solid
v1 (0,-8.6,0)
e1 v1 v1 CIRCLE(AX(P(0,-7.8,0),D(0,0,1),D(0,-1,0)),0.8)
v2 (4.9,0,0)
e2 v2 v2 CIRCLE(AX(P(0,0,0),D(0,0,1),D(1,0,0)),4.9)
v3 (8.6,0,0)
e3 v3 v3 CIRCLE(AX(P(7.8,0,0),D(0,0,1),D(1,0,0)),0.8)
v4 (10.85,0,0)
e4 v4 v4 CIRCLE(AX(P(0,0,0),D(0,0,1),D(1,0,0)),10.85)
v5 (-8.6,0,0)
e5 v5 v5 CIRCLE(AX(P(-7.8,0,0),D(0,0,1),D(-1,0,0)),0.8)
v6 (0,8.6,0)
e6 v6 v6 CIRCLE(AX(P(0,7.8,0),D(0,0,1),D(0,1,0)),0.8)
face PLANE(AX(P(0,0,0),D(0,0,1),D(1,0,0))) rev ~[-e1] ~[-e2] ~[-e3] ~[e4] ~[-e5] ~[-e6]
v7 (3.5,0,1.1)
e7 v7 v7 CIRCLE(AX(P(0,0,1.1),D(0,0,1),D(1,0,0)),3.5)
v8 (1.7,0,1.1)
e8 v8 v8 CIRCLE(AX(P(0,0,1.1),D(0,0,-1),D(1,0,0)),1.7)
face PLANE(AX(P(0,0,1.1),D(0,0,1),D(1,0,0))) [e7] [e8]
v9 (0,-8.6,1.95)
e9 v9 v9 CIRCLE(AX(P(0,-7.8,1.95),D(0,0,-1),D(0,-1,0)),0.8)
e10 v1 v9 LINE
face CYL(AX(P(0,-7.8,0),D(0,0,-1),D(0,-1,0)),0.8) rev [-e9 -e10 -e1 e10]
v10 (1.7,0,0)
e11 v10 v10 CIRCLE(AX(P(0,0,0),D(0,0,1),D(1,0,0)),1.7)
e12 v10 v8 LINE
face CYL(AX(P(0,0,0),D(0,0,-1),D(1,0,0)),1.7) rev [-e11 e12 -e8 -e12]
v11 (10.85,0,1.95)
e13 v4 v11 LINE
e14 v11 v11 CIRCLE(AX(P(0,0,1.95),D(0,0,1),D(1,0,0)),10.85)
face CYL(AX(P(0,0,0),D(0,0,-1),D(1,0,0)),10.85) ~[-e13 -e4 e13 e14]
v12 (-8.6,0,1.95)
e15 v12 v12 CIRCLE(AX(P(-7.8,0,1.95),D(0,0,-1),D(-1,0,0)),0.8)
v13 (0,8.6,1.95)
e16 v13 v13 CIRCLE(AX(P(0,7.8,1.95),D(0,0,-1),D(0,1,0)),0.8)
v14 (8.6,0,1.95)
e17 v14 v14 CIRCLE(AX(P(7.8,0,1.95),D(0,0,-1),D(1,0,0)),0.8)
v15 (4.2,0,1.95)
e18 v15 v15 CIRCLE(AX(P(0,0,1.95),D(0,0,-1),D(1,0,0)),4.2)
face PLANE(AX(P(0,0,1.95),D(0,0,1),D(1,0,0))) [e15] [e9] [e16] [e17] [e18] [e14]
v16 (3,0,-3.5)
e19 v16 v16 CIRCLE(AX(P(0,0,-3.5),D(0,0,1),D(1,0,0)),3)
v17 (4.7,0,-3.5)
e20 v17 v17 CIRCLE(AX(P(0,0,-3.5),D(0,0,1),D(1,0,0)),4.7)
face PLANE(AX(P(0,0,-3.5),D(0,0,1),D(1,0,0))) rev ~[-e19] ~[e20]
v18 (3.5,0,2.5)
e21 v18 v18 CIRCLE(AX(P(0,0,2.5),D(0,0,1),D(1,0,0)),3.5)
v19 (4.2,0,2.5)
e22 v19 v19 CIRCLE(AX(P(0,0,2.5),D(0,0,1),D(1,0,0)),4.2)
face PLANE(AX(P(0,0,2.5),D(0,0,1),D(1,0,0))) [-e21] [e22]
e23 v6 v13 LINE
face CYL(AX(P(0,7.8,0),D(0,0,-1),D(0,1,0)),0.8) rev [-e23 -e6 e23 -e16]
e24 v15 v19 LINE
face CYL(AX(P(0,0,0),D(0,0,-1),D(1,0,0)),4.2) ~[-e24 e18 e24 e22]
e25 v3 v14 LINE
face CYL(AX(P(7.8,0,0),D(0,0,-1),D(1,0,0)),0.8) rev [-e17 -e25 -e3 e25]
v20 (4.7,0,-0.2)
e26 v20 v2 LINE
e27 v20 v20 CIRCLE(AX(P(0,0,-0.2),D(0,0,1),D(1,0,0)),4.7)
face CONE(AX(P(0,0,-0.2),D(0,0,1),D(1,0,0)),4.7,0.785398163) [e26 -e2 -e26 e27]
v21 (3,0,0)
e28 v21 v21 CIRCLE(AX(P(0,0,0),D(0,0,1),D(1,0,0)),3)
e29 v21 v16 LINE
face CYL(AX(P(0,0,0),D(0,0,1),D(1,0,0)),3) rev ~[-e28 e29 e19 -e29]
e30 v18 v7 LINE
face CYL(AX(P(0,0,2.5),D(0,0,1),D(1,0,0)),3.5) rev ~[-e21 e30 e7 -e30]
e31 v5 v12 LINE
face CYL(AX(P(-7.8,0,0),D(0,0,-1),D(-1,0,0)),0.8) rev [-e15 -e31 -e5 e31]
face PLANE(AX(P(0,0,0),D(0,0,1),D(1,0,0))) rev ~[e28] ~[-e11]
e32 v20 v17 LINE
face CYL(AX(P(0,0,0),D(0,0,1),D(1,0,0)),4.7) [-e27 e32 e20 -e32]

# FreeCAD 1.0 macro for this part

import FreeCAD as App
import Part
import Sketcher

V = App.Vector
Q = App.Units.Quantity


def edges_at(feature, points):
    """Names of the edges that pass closest to the given points."""
    edges = feature.Shape.Edges
    near = lambda p: min(range(len(edges)), key=lambda i: edges[i].distToShape(Part.Vertex(*p))[0])
    return sorted({f"Edge{near(p) + 1}" for p in points})

doc = App.newDocument("Part")
body = doc.addObject("PartDesign::Body", "Body")

# Sketch on XY plane
sketch1 = body.newObject("Sketcher::SketchObject", "Sketch")
sketch1.AttachmentSupport = (doc.getObject("XY_Plane"), [""])
sketch1.MapMode = "FlatFace"
sketch1.addGeometry(Part.Circle(V(0, 0, 0), V(0, 0, 1), 11), False)
sketch1.addConstraint(Sketcher.Constraint("Coincident", 0, 3, -1, 1))
sketch1.addConstraint(Sketcher.Constraint("Diameter", 0, Q("21.7 mm")))
pad1 = body.newObject("PartDesign::Pad", "Pad")
pad1.Profile = sketch1
pad1.Length = 1.95

# Sketch on XY plane
sketch2 = body.newObject("Sketcher::SketchObject", "Sketch001")
sketch2.AttachmentSupport = (doc.getObject("XY_Plane"), [""])
sketch2.MapMode = "FlatFace"
sketch2.addGeometry(Part.Circle(V(0, 0, 0), V(0, 0, 1), 4.7), False)
sketch2.addConstraint(Sketcher.Constraint("Coincident", 0, 3, -1, 1))
sketch2.addConstraint(Sketcher.Constraint("Diameter", 0, Q("9.4 mm")))
pad2 = body.newObject("PartDesign::Pad", "Pad001")
pad2.Profile = sketch2
pad2.Length = 3.5
pad2.Reversed = True

# Sketch on XY plane
sketch3 = body.newObject("Sketcher::SketchObject", "Sketch002")
sketch3.AttachmentSupport = (doc.getObject("XY_Plane"), [""])
sketch3.MapMode = "FlatFace"
sketch3.addGeometry(Part.Circle(V(0, 0, 0), V(0, 0, 1), 3), False)
sketch3.addConstraint(Sketcher.Constraint("Coincident", 0, 3, -1, 1))
sketch3.addConstraint(Sketcher.Constraint("Diameter", 0, Q("6 mm")))
pocket1 = body.newObject("PartDesign::Pocket", "Pocket")
pocket1.Profile = sketch3
pocket1.Length = 3.5

# Sketch on XY plane
sketch4 = body.newObject("Sketcher::SketchObject", "Sketch003")
sketch4.AttachmentSupport = (doc.getObject("XY_Plane"), [""])
sketch4.MapMode = "FlatFace"
sketch4.addGeometry(Part.Circle(V(0, 0, 0), V(0, 0, 1), 4.2), False)
sketch4.addConstraint(Sketcher.Constraint("Coincident", 0, 3, -1, 1))
sketch4.addConstraint(Sketcher.Constraint("Diameter", 0, Q("8.4 mm")))
pad3 = body.newObject("PartDesign::Pad", "Pad002")
pad3.Profile = sketch4
pad3.Length = 2.5

# Sketch on XY plane
sketch5 = body.newObject("Sketcher::SketchObject", "Sketch004")
sketch5.AttachmentSupport = (doc.getObject("XY_Plane"), [""])
sketch5.MapMode = "FlatFace"
sketch5.AttachmentOffset = App.Placement(V(0, 0, 2.5), App.Rotation())
sketch5.addGeometry(Part.Circle(V(0, 0, 0), V(0, 0, 1), 3.5), False)
sketch5.addConstraint(Sketcher.Constraint("Coincident", 0, 3, -1, 1))
sketch5.addConstraint(Sketcher.Constraint("Diameter", 0, Q("7 mm")))
pocket2 = body.newObject("PartDesign::Pocket", "Pocket001")
pocket2.Profile = sketch5
pocket2.Length = 1.4

# Sketch on XY plane
sketch6 = body.newObject("Sketcher::SketchObject", "Sketch005")
sketch6.AttachmentSupport = (doc.getObject("XY_Plane"), [""])
sketch6.MapMode = "FlatFace"
sketch6.addGeometry(Part.Circle(V(0, 0, 0), V(0, 0, 1), 1.7), False)
sketch6.addConstraint(Sketcher.Constraint("Coincident", 0, 3, -1, 1))
sketch6.addConstraint(Sketcher.Constraint("Diameter", 0, Q("3.4 mm")))
pocket3 = body.newObject("PartDesign::Pocket", "Pocket002")
pocket3.Profile = sketch6
pocket3.Type = "ThroughAll"
pocket3.Reversed = True

# Sketch on XY plane
sketch7 = body.newObject("Sketcher::SketchObject", "Sketch006")
sketch7.AttachmentSupport = (doc.getObject("XY_Plane"), [""])
sketch7.MapMode = "FlatFace"
sketch7.addGeometry(Part.Circle(V(7.8, 0, 0), V(0, 0, 1), 0.8), False)
sketch7.addConstraint(Sketcher.Constraint("PointOnObject", 0, 3, -1))
sketch7.addConstraint(Sketcher.Constraint("Diameter", 0, Q("1.6 mm")))
sketch7.addConstraint(Sketcher.Constraint("DistanceX", -1, 1, 0, 3, Q("7.8 mm")))
pocket4 = body.newObject("PartDesign::Pocket", "Pocket003")
pocket4.Profile = sketch7
pocket4.Type = "ThroughAll"
pocket4.Reversed = True
doc.recompute()

polarpattern = body.newObject("PartDesign::PolarPattern", "PolarPattern")
polarpattern.Originals = [pocket4]
polarpattern.Axis = (doc.getObject("Z_Axis"), [""])
polarpattern.Angle = 360
polarpattern.Occurrences = 4
body.Tip = polarpattern
doc.recompute()

chamfer = body.newObject("PartDesign::Chamfer", "Chamfer")
chamfer.Base = (polarpattern, edges_at(polarpattern, [(-4.7, 0, 0)]))
chamfer.Size = 0.2

doc.recompute()
